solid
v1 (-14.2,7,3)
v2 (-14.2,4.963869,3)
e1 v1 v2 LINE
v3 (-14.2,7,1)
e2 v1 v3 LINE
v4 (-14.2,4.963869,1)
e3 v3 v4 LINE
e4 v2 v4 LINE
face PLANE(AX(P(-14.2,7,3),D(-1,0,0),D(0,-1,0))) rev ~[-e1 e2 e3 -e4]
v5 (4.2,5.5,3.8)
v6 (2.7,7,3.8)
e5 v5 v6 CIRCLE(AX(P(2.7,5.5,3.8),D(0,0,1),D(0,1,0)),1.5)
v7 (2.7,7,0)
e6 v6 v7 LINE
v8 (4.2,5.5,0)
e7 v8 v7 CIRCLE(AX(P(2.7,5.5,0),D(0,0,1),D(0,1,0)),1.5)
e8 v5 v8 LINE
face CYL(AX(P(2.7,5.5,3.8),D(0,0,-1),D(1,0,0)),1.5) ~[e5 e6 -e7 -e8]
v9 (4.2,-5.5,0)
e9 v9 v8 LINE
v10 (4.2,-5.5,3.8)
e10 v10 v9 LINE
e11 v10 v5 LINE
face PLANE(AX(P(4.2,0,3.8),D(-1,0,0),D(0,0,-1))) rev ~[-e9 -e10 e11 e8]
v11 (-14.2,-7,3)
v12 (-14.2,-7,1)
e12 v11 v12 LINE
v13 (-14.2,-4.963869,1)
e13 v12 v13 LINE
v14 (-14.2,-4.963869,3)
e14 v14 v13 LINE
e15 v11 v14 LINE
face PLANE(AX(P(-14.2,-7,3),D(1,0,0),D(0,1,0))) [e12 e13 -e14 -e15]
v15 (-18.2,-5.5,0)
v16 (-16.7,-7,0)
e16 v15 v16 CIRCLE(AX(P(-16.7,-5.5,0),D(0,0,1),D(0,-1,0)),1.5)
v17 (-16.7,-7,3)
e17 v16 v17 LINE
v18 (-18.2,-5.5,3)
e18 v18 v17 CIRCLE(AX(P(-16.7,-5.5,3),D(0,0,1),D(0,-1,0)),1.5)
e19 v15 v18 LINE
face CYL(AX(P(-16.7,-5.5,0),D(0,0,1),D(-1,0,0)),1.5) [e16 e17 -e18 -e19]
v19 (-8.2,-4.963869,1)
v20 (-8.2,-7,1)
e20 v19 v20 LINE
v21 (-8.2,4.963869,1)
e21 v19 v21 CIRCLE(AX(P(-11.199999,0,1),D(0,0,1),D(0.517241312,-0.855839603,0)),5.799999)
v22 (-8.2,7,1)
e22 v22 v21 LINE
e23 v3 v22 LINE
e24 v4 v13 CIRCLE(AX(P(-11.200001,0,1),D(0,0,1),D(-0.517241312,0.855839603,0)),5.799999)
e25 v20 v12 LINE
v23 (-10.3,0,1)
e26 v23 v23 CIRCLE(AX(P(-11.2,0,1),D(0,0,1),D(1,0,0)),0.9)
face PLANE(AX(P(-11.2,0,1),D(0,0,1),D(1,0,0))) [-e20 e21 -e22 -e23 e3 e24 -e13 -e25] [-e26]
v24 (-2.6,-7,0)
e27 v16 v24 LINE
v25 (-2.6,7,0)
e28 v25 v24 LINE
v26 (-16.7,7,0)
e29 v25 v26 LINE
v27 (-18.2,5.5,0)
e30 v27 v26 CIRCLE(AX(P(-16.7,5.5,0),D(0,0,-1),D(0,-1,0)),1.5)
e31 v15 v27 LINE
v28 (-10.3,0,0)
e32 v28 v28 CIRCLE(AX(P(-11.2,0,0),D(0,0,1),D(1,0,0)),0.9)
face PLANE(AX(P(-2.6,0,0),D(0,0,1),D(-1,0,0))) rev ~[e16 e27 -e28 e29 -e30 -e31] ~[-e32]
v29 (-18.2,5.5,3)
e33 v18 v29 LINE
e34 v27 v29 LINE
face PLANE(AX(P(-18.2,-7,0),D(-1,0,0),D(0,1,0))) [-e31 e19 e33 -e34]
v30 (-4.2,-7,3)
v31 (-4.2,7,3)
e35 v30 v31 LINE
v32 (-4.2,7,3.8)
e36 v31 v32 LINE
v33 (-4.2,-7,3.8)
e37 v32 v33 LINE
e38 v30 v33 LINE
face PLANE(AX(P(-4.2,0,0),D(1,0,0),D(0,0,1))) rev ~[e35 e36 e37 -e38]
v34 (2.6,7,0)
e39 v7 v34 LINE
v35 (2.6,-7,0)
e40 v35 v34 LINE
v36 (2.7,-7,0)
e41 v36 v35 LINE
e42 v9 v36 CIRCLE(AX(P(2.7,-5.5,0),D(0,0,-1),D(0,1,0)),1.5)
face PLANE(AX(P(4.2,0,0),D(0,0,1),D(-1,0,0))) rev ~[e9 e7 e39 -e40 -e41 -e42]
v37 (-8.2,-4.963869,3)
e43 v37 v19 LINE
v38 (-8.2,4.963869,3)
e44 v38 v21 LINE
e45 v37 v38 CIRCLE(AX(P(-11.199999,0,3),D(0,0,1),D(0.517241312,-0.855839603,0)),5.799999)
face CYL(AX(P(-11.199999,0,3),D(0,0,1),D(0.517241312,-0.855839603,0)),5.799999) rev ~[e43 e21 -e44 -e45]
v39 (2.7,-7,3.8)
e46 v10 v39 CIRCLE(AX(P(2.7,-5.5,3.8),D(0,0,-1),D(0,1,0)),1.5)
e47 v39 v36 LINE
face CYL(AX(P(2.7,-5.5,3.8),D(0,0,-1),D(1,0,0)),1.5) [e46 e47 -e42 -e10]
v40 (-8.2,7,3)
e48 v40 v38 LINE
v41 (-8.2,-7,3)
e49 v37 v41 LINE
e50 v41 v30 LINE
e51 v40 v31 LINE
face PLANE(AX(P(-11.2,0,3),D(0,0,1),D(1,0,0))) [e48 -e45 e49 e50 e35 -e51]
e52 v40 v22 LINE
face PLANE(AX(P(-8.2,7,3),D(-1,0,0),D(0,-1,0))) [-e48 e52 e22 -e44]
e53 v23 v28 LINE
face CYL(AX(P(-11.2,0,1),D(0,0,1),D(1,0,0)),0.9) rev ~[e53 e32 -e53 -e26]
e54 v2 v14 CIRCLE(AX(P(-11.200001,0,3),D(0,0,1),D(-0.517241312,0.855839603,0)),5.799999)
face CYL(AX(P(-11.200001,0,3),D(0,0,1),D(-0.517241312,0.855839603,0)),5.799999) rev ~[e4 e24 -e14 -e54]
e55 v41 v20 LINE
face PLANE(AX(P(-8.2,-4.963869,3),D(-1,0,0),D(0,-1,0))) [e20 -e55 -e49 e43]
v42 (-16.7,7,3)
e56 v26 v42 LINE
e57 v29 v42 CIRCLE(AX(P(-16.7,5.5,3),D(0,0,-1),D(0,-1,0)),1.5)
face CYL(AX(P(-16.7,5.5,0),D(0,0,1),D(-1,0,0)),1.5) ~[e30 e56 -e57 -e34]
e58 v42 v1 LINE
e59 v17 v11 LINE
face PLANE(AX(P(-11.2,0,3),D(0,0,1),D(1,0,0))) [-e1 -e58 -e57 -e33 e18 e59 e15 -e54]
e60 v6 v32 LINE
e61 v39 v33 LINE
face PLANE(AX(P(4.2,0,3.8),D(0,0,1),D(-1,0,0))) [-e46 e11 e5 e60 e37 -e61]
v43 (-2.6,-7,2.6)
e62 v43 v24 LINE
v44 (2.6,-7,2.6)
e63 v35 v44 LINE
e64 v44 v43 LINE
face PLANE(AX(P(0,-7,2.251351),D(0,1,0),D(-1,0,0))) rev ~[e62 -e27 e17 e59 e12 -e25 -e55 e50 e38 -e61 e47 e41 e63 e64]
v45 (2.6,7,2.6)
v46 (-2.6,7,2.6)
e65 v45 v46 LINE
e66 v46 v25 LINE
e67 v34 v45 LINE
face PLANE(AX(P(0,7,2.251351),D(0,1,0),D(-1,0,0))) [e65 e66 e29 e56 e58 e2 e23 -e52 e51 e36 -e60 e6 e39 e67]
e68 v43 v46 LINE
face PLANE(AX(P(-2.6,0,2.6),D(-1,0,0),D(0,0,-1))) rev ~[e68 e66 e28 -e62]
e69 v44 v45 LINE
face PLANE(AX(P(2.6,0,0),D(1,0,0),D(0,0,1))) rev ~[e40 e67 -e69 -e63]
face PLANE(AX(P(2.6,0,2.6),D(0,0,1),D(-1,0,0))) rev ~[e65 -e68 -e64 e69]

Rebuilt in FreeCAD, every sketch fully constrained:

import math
import FreeCAD as App
import Part
import Sketcher

V = App.Vector
Q = App.Units.Quantity


def edges_at(feature, points):
    """Names of the edges that pass closest to the given points."""
    edges = feature.Shape.Edges
    near = lambda p: min(range(len(edges)), key=lambda i: edges[i].distToShape(Part.Vertex(*p))[0])
    return sorted({f"Edge{near(p) + 1}" for p in points})

doc = App.newDocument("Part")
body = doc.addObject("PartDesign::Body", "Body")

sketch1 = body.newObject("Sketcher::SketchObject", "Sketch")
sketch1.AttachmentSupport = (doc.getObject("XZ_Plane"), [""])
sketch1.MapMode = "FlatFace"
sketch1.addGeometry(Part.LineSegment(V(4.2, 3.8, 0), V(-4.2, 3.8, 0)), False)
sketch1.addGeometry(Part.LineSegment(V(-4.2, 3.8, 0), V(-4.2, 0, 0)), False)
sketch1.addGeometry(Part.LineSegment(V(-4.2, 0, 0), V(-2.6, 0, 0)), False)
sketch1.addGeometry(Part.LineSegment(V(-2.6, 0, 0), V(-2.6, 2.6, 0)), False)
sketch1.addGeometry(Part.LineSegment(V(-2.6, 2.6, 0), V(2.6, 2.6, 0)), False)
sketch1.addGeometry(Part.LineSegment(V(2.6, 2.6, 0), V(2.6, 0, 0)), False)
sketch1.addGeometry(Part.LineSegment(V(2.6, 0, 0), V(4.2, 0, 0)), False)
sketch1.addGeometry(Part.LineSegment(V(4.2, 0, 0), V(4.2, 3.8, 0)), False)
sketch1.addConstraint(Sketcher.Constraint("Coincident", 0, 2, 1, 1))
sketch1.addConstraint(Sketcher.Constraint("Coincident", 1, 2, 2, 1))
sketch1.addConstraint(Sketcher.Constraint("Coincident", 2, 2, 3, 1))
sketch1.addConstraint(Sketcher.Constraint("Coincident", 3, 2, 4, 1))
sketch1.addConstraint(Sketcher.Constraint("Coincident", 4, 2, 5, 1))
sketch1.addConstraint(Sketcher.Constraint("Coincident", 5, 2, 6, 1))
sketch1.addConstraint(Sketcher.Constraint("Coincident", 6, 2, 7, 1))
sketch1.addConstraint(Sketcher.Constraint("Coincident", 7, 2, 0, 1))
sketch1.addConstraint(Sketcher.Constraint("Horizontal", 0))
sketch1.addConstraint(Sketcher.Constraint("Vertical", 1))
sketch1.addConstraint(Sketcher.Constraint("Horizontal", 2))
sketch1.addConstraint(Sketcher.Constraint("Vertical", 3))
sketch1.addConstraint(Sketcher.Constraint("Horizontal", 4))
sketch1.addConstraint(Sketcher.Constraint("Vertical", 5))
sketch1.addConstraint(Sketcher.Constraint("Horizontal", 6))
sketch1.addConstraint(Sketcher.Constraint("Vertical", 7))
sketch1.addConstraint(Sketcher.Constraint("Symmetric", 2, 2, 5, 2, -1, 1))
sketch1.addConstraint(Sketcher.Constraint("Symmetric", 1, 2, 6, 2, -2))
sketch1.addConstraint(Sketcher.Constraint("DistanceX", 0, 2, 0, 1, Q("8.4 mm")))
sketch1.addConstraint(Sketcher.Constraint("DistanceX", 2, 1, 2, 2, Q("1.6 mm")))
sketch1.addConstraint(Sketcher.Constraint("DistanceY", 1, 2, 1, 1, Q("3.8 mm")))
sketch1.addConstraint(Sketcher.Constraint("DistanceY", 3, 1, 3, 2, Q("2.6 mm")))
pad1 = body.newObject("PartDesign::Pad", "Pad")
pad1.Profile = sketch1
pad1.Length = 14
pad1.Midplane = True
body2 = doc.addObject("PartDesign::Body", "Body001")

sketch2 = body2.newObject("Sketcher::SketchObject", "Sketch001")
sketch2.AttachmentSupport = (doc.getObject("XY_Plane001"), [""])
sketch2.MapMode = "FlatFace"
sketch2.addGeometry(Part.LineSegment(V(-7, 7, 0), V(-7, -7, 0)), False)
sketch2.addGeometry(Part.LineSegment(V(-7, -7, 0), V(7, -7, 0)), False)
sketch2.addGeometry(Part.LineSegment(V(7, -7, 0), V(7, 7, 0)), False)
sketch2.addGeometry(Part.LineSegment(V(7, 7, 0), V(-7, 7, 0)), False)
sketch2.addConstraint(Sketcher.Constraint("Coincident", 0, 2, 1, 1))
sketch2.addConstraint(Sketcher.Constraint("Coincident", 1, 2, 2, 1))
sketch2.addConstraint(Sketcher.Constraint("Coincident", 2, 2, 3, 1))
sketch2.addConstraint(Sketcher.Constraint("Coincident", 3, 2, 0, 1))
sketch2.addConstraint(Sketcher.Constraint("Vertical", 0))
sketch2.addConstraint(Sketcher.Constraint("Horizontal", 1))
sketch2.addConstraint(Sketcher.Constraint("Vertical", 2))
sketch2.addConstraint(Sketcher.Constraint("Horizontal", 3))
sketch2.addConstraint(Sketcher.Constraint("Symmetric", 0, 2, 2, 2, -1, 1))
sketch2.addConstraint(Sketcher.Constraint("Equal", 3, 0))
sketch2.addConstraint(Sketcher.Constraint("DistanceX", 1, 1, 1, 2, Q("14 mm")))
pad2 = body2.newObject("PartDesign::Pad", "Pad001")
pad2.Profile = sketch2
pad2.Length = 3

sketch3 = body2.newObject("Sketcher::SketchObject", "Sketch002")
sketch3.AttachmentSupport = (doc.getObject("XY_Plane001"), [""])
sketch3.MapMode = "FlatFace"
sketch3.AttachmentOffset = App.Placement(V(0, 0, 3), App.Rotation())
sketch3.addGeometry(Part.LineSegment(V(-3, 7, 0), V(-3, 4.963869, 0)), False)
sketch3.addGeometry(Part.ArcOfCircle(Part.Circle(V(-0.000001, 0, 0), V(0, 0, 1), 5.799999), math.radians(121.147385), math.radians(238.852615)), False)
sketch3.addGeometry(Part.LineSegment(V(-3, -4.963869, 0), V(-3, -7, 0)), False)
sketch3.addGeometry(Part.LineSegment(V(-3, -7, 0), V(3, -7, 0)), False)
sketch3.addGeometry(Part.LineSegment(V(3, -7, 0), V(3, -4.963869, 0)), False)
sketch3.addGeometry(Part.ArcOfCircle(Part.Circle(V(0.000001, 0, 0), V(0, 0, 1), 5.799999), math.radians(-58.852615), math.radians(58.852615)), False)
sketch3.addGeometry(Part.LineSegment(V(3, 4.963869, 0), V(3, 7, 0)), False)
sketch3.addGeometry(Part.LineSegment(V(3, 7, 0), V(-3, 7, 0)), False)
sketch3.addConstraint(Sketcher.Constraint("Coincident", 0, 2, 1, 1))
sketch3.addConstraint(Sketcher.Constraint("Coincident", 1, 2, 2, 1))
sketch3.addConstraint(Sketcher.Constraint("Coincident", 2, 2, 3, 1))
sketch3.addConstraint(Sketcher.Constraint("Coincident", 3, 2, 4, 1))
sketch3.addConstraint(Sketcher.Constraint("Coincident", 4, 2, 5, 1))
sketch3.addConstraint(Sketcher.Constraint("Coincident", 5, 2, 6, 1))
sketch3.addConstraint(Sketcher.Constraint("Coincident", 6, 2, 7, 1))
sketch3.addConstraint(Sketcher.Constraint("Coincident", 7, 2, 0, 1))
sketch3.addConstraint(Sketcher.Constraint("Vertical", 0))
sketch3.addConstraint(Sketcher.Constraint("Vertical", 2))
sketch3.addConstraint(Sketcher.Constraint("Horizontal", 3))
sketch3.addConstraint(Sketcher.Constraint("Vertical", 4))
sketch3.addConstraint(Sketcher.Constraint("Vertical", 6))
sketch3.addConstraint(Sketcher.Constraint("Horizontal", 7))
sketch3.addConstraint(Sketcher.Constraint("Coincident", 1, 3, -1, 1))
sketch3.addConstraint(Sketcher.Constraint("Coincident", 5, 3, -1, 1))
sketch3.addConstraint(Sketcher.Constraint("Equal", 1, 5))
sketch3.addConstraint(Sketcher.Constraint("Symmetric", 2, 2, 6, 2, -1, 1))
sketch3.addConstraint(Sketcher.Constraint("Horizontal", 1, 2, 4, 2))
sketch3.addConstraint(Sketcher.Constraint("Horizontal", 0, 2, 5, 2))
sketch3.addConstraint(Sketcher.Constraint("Radius", 1, Q("5.799999 mm")))
sketch3.addConstraint(Sketcher.Constraint("DistanceX", 3, 1, 3, 2, Q("6 mm")))
sketch3.addConstraint(Sketcher.Constraint("DistanceY", 2, 2, -1, 1, Q("7 mm")))
pocket1 = body2.newObject("PartDesign::Pocket", "Pocket")
pocket1.Profile = sketch3
pocket1.Length = 2

sketch4 = body2.newObject("Sketcher::SketchObject", "Sketch003")
sketch4.AttachmentSupport = (doc.getObject("XY_Plane001"), [""])
sketch4.MapMode = "FlatFace"
sketch4.AttachmentOffset = App.Placement(V(0, 0, 1), App.Rotation())
sketch4.addGeometry(Part.Circle(V(0, 0, 0), V(0, 0, 1), 0.9), False)
sketch4.addConstraint(Sketcher.Constraint("Coincident", 0, 3, -1, 1))
sketch4.addConstraint(Sketcher.Constraint("Diameter", 0, Q("1.8 mm")))
pocket2 = body2.newObject("PartDesign::Pocket", "Pocket001")
pocket2.Profile = sketch4
pocket2.Type = "ThroughAll"
body3 = doc.addObject("PartDesign::Body", "Body002")
doc.recompute()

body2.Placement = App.Placement(V(-11.2, 0, 0), App.Rotation(V(0, 0, 1), 0))
boolean = body3.newObject("PartDesign::Boolean", "Boolean")
boolean.Type = "Fuse"
boolean.addObjects([body2])
doc.recompute()

boolean2 = body3.newObject("PartDesign::Boolean", "Boolean001")
boolean2.Type = "Fuse"
boolean2.addObjects([body])
doc.recompute()

fillet = body3.newObject("PartDesign::Fillet", "Fillet")
fillet.Base = (boolean2, edges_at(boolean2, [
    (-18.2, -7, 1.5),
    (-18.2, 7, 1.5),
    (4.2, 7, 1.9),
    (4.2, -7, 1.9),
]))
fillet.Radius = 1.5

doc.recompute()
